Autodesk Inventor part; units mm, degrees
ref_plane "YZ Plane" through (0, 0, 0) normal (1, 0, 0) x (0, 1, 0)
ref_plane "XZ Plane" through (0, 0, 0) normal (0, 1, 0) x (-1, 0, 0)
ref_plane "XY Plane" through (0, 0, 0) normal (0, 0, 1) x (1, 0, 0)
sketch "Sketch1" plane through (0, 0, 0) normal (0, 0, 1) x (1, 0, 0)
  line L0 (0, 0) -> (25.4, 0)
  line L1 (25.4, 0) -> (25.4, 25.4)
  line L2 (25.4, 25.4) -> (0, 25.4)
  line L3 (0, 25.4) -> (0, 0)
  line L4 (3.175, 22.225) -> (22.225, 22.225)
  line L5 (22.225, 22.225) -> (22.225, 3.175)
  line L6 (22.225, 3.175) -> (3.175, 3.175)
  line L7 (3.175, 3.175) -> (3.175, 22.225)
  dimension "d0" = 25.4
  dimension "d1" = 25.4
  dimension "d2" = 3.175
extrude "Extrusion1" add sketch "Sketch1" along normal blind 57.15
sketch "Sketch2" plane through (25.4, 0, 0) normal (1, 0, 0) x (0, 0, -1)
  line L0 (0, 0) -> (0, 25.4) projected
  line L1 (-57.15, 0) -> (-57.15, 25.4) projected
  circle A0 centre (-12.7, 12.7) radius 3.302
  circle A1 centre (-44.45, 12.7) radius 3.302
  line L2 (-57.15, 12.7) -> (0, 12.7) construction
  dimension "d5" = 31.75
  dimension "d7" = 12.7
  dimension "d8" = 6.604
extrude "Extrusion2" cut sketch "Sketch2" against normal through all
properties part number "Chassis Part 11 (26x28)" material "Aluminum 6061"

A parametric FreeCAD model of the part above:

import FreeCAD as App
import Part
import Sketcher
from FreeCAD import Vector
Q = App.Units.Quantity

doc = App.newDocument("Part")
body = doc.addObject("PartDesign::Body", "Body")

# Sketch on XY plane
sketch1 = body.newObject("Sketcher::SketchObject", "Sketch")
sketch1.AttachmentSupport = (doc.getObject("XY_Plane"), [""])
sketch1.MapMode = "FlatFace"
sketch1.addGeometry([
    Part.LineSegment(Vector(0, 25, 0), Vector(0, 0, 0)),  # 0
    Part.LineSegment(Vector(0, 0, 0), Vector(25, 0, 0)),  # 1
    Part.LineSegment(Vector(25, 0, 0), Vector(25, 25, 0)),  # 2
    Part.LineSegment(Vector(25, 25, 0), Vector(0, 25, 0)),  # 3
    Part.LineSegment(Vector(3, 3, 0), Vector(3, 22, 0)),  # 4
    Part.LineSegment(Vector(3, 22, 0), Vector(22, 22, 0)),  # 5
    Part.LineSegment(Vector(22, 22, 0), Vector(22, 3, 0)),  # 6
    Part.LineSegment(Vector(22, 3, 0), Vector(3, 3, 0)),  # 7
], False)
sketch1.addConstraint([
    Sketcher.Constraint("Coincident", 0, 2, 1, 1),
    Sketcher.Constraint("Coincident", 1, 2, 2, 1),
    Sketcher.Constraint("Coincident", 2, 2, 3, 1),
    Sketcher.Constraint("Coincident", 3, 2, 0, 1),
    Sketcher.Constraint("Coincident", 4, 2, 5, 1),
    Sketcher.Constraint("Coincident", 5, 2, 6, 1),
    Sketcher.Constraint("Coincident", 6, 2, 7, 1),
    Sketcher.Constraint("Coincident", 7, 2, 4, 1),
    Sketcher.Constraint("Vertical", 0),
    Sketcher.Constraint("Horizontal", 1),
    Sketcher.Constraint("Vertical", 2),
    Sketcher.Constraint("Horizontal", 3),
    Sketcher.Constraint("Vertical", 4),
    Sketcher.Constraint("Horizontal", 5),
    Sketcher.Constraint("Vertical", 6),
    Sketcher.Constraint("Horizontal", 7),
    Sketcher.Constraint("Coincident", 0, 2, -1, 1),
    Sketcher.Constraint("Equal", 3, 0),
    Sketcher.Constraint("Equal", 7, 4),
    Sketcher.Constraint("DistanceX", 1, 1, 1, 2, Q("1 in")),
    Sketcher.Constraint("DistanceX", -1, 1, 4, 2, Q("0.125 in")),
    Sketcher.Constraint("DistanceY", -1, 1, 6, 2, Q("0.125 in")),
    Sketcher.Constraint("DistanceY", 4, 2, 3, 2, Q("0.125 in")),
])
pad1 = body.newObject("PartDesign::Pad", "Pad")
pad1.Profile = sketch1
pad1.Length = Q("2.25 in")

# Sketch on YZ plane
sketch2 = body.newObject("Sketcher::SketchObject", "Sketch001")
sketch2.AttachmentSupport = (doc.getObject("YZ_Plane"), [""])
sketch2.MapMode = "FlatFace"
sketch2.AttachmentOffset = App.Placement(Vector(0, 0, 1 * 25.4), App.Rotation())
sketch2.addGeometry([
    Part.Circle(Vector(12.7, 12.7, 0), Vector(0, 0, 1), 3.3),
    Part.Circle(Vector(12.7, 44.5, 0), Vector(0, 0, 1), 3.3),
], False)
sketch2.addConstraint([
    Sketcher.Constraint("Equal", 0, 1),
    Sketcher.Constraint("Vertical", 0, 3, 1, 3),
    Sketcher.Constraint("Diameter", 0, Q("0.26 in")),
    Sketcher.Constraint("DistanceX", -1, 1, 0, 3, Q("0.5 in")),
    Sketcher.Constraint("DistanceY", -1, 1, 0, 3, Q("0.5 in")),
    Sketcher.Constraint("DistanceY", 0, 3, 1, 3, Q("1.25 in")),
])
pocket1 = body.newObject("PartDesign::Pocket", "Pocket")
pocket1.Profile = sketch2
pocket1.Type = "ThroughAll"

doc.recompute()
